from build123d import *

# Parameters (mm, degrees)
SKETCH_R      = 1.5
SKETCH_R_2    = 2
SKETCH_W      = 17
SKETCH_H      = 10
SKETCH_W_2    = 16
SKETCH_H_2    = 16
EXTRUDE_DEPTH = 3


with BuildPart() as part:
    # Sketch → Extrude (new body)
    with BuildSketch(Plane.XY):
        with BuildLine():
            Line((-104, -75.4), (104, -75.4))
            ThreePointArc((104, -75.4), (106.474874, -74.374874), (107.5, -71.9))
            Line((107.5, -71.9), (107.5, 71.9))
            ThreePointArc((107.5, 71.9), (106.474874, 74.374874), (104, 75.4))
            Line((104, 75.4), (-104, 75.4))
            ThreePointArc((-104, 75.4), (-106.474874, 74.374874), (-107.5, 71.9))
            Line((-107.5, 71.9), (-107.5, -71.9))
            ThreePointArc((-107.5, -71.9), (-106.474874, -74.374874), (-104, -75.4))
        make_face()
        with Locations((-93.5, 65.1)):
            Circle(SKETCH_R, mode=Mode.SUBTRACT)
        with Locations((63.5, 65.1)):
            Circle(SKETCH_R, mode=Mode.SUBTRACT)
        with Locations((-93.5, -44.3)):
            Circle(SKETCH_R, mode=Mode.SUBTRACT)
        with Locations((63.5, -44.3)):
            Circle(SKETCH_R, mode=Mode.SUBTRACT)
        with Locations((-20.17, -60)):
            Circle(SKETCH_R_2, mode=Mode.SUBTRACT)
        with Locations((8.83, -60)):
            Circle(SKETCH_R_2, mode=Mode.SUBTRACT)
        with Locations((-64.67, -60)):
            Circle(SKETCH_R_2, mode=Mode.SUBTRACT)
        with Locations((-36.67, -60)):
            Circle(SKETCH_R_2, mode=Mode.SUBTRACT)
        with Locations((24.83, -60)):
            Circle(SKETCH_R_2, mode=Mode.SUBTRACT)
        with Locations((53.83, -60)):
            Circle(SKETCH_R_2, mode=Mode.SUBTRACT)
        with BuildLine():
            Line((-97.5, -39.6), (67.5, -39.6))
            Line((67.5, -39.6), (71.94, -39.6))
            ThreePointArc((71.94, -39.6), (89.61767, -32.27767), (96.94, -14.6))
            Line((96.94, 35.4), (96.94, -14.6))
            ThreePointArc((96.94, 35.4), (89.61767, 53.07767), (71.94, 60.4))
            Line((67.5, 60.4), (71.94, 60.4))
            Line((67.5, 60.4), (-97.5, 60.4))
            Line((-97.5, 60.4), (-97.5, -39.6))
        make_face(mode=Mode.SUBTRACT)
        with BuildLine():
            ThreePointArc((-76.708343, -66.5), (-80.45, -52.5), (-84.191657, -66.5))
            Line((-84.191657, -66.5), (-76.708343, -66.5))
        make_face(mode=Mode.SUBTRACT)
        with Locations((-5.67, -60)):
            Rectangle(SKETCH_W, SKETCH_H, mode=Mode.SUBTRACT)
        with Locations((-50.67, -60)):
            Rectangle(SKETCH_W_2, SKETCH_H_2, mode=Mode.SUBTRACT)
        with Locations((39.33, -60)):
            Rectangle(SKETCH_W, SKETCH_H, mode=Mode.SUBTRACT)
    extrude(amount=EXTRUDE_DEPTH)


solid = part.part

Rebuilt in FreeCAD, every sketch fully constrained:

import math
import FreeCAD as App
import Part
import Sketcher
Q = App.Units.Quantity

doc = App.newDocument("Part")
params = doc.addObject("Spreadsheet::Sheet", "Params")
for row, (alias, value) in enumerate([
    ("sketch1_diameter", "4 mm"),
    ("sketch1_diameter2", "3 mm"),
    ("sketch1_radius", "24.999998 mm"),
    ("sketch1_radius2", "3.499999 mm"),
    ("sketch1_radius3", "7.5 mm"),
    ("pad1_length", "3 mm"),
], start=1):
    params.set(f"A{row}", alias)
    params.set(f"B{row}", "=" + value)
    params.setAlias(f"B{row}", alias)

body = doc.addObject("PartDesign::Body", "Body")

# Sketch on XY plane
sketch1 = doc.addObject("Sketcher::SketchObject", "Sketch")
body.addObject(sketch1)
sketch1.AttachmentSupport = (doc.XY_Plane, [""])
sketch1.MapMode = "FlatFace"
sketch1.addGeometry([
    Part.LineSegment(App.Vector(-104, -75.4, 0), App.Vector(104, -75.4, 0)),  # 0
    Part.ArcOfCircle(Part.Circle(App.Vector(104, -71.9, 0), App.Vector(0, 0, 1), 3.5), math.radians(-90), math.radians(0)),  # 1
    Part.LineSegment(App.Vector(107.5, -71.9, 0), App.Vector(107.5, 71.9, 0)),  # 2
    Part.ArcOfCircle(Part.Circle(App.Vector(104, 71.9, 0), App.Vector(0, 0, 1), 3.5), math.radians(0), math.radians(90)),  # 3
    Part.LineSegment(App.Vector(104, 75.4, 0), App.Vector(-104, 75.4, 0)),  # 4
    Part.ArcOfCircle(Part.Circle(App.Vector(-104, 71.9, 0), App.Vector(0, 0, 1), 3.5), math.radians(90), math.radians(180)),  # 5
    Part.LineSegment(App.Vector(-107.5, 71.9, 0), App.Vector(-107.5, -71.9, 0)),  # 6
    Part.ArcOfCircle(Part.Circle(App.Vector(-104, -71.9, 0), App.Vector(0, 0, 1), 3.5), math.radians(180), math.radians(270)),  # 7
    Part.ArcOfCircle(Part.Circle(App.Vector(-80.5, -60, 0), App.Vector(0, 0, 1), 7.5), math.radians(-60), math.radians(240)),  # 8
    Part.LineSegment(App.Vector(-76.7, -66.5, 0), App.Vector(-84.2, -66.5, 0)),  # 9
    Part.Circle(App.Vector(-64.7, -60, 0), App.Vector(0, 0, 1), 2),  # 10
    Part.LineSegment(App.Vector(-42.7, -68, 0), App.Vector(-58.7, -68, 0)),  # 11
    Part.LineSegment(App.Vector(-58.7, -68, 0), App.Vector(-58.7, -52, 0)),  # 12
    Part.LineSegment(App.Vector(-58.7, -52, 0), App.Vector(-42.7, -52, 0)),  # 13
    Part.LineSegment(App.Vector(-42.7, -52, 0), App.Vector(-42.7, -68, 0)),  # 14
    Part.Circle(App.Vector(-93.5, -44.3, 0), App.Vector(0, 0, 1), 1.5),  # 15
    Part.Circle(App.Vector(-36.7, -60, 0), App.Vector(0, 0, 1), 2),  # 16
    Part.Circle(App.Vector(-20.2, -60, 0), App.Vector(0, 0, 1), 2),  # 17
    Part.LineSegment(App.Vector(2.8, -65, 0), App.Vector(-14.2, -65, 0)),  # 18
    Part.LineSegment(App.Vector(-14.2, -65, 0), App.Vector(-14.2, -55, 0)),  # 19
    Part.LineSegment(App.Vector(-14.2, -55, 0), App.Vector(2.8, -55, 0)),  # 20
    Part.LineSegment(App.Vector(2.8, -55, 0), App.Vector(2.8, -65, 0)),  # 21
    Part.Circle(App.Vector(8.8, -60, 0), App.Vector(0, 0, 1), 2),  # 22
    Part.Circle(App.Vector(24.8, -60, 0), App.Vector(0, 0, 1), 2),  # 23
    Part.LineSegment(App.Vector(47.8, -65, 0), App.Vector(30.8, -65, 0)),  # 24
    Part.LineSegment(App.Vector(30.8, -65, 0), App.Vector(30.8, -55, 0)),  # 25
    Part.LineSegment(App.Vector(30.8, -55, 0), App.Vector(47.8, -55, 0)),  # 26
    Part.LineSegment(App.Vector(47.8, -55, 0), App.Vector(47.8, -65, 0)),  # 27
    Part.Circle(App.Vector(53.8, -60, 0), App.Vector(0, 0, 1), 2),  # 28
    Part.Circle(App.Vector(63.5, -44.3, 0), App.Vector(0, 0, 1), 1.5),  # 29
    Part.Circle(App.Vector(-93.5, 65.1, 0), App.Vector(0, 0, 1), 1.5),  # 30
    Part.LineSegment(App.Vector(71.9, -39.6, 0), App.Vector(-97.5, -39.6, 0)),  # 31
    Part.LineSegment(App.Vector(-97.5, -39.6, 0), App.Vector(-97.5, 60.4, 0)),  # 32
    Part.LineSegment(App.Vector(-97.5, 60.4, 0), App.Vector(71.9, 60.4, 0)),  # 33
    Part.ArcOfCircle(Part.Circle(App.Vector(71.9, 35.4, 0), App.Vector(0, 0, 1), 25), math.radians(0), math.radians(90)),  # 34
    Part.LineSegment(App.Vector(96.9, 35.4, 0), App.Vector(96.9, -14.6, 0)),  # 35
    Part.ArcOfCircle(Part.Circle(App.Vector(71.9, -14.6, 0), App.Vector(0, 0, 1), 25), math.radians(-90), math.radians(0)),  # 36
    Part.Circle(App.Vector(63.5, 65.1, 0), App.Vector(0, 0, 1), 1.5),  # 37
], False)
sketch1.addConstraint([
    Sketcher.Constraint("Tangent", 0, 2, 1, 1),
    Sketcher.Constraint("Tangent", 1, 2, 2, 1),
    Sketcher.Constraint("Tangent", 2, 2, 3, 1),
    Sketcher.Constraint("Tangent", 3, 2, 4, 1),
    Sketcher.Constraint("Tangent", 4, 2, 5, 1),
    Sketcher.Constraint("Tangent", 5, 2, 6, 1),
    Sketcher.Constraint("Tangent", 6, 2, 7, 1),
    Sketcher.Constraint("Tangent", 7, 2, 0, 1),
    Sketcher.Constraint("Coincident", 8, 1, 9, 1),
    Sketcher.Constraint("Coincident", 9, 2, 8, 2),
    Sketcher.Constraint("Coincident", 11, 2, 12, 1),
    Sketcher.Constraint("Coincident", 12, 2, 13, 1),
    Sketcher.Constraint("Coincident", 13, 2, 14, 1),
    Sketcher.Constraint("Coincident", 14, 2, 11, 1),
    Sketcher.Constraint("Coincident", 18, 2, 19, 1),
    Sketcher.Constraint("Coincident", 19, 2, 20, 1),
    Sketcher.Constraint("Coincident", 20, 2, 21, 1),
    Sketcher.Constraint("Coincident", 21, 2, 18, 1),
    Sketcher.Constraint("Coincident", 24, 2, 25, 1),
    Sketcher.Constraint("Coincident", 25, 2, 26, 1),
    Sketcher.Constraint("Coincident", 26, 2, 27, 1),
    Sketcher.Constraint("Coincident", 27, 2, 24, 1),
    Sketcher.Constraint("Coincident", 31, 2, 32, 1),
    Sketcher.Constraint("Coincident", 32, 2, 33, 1),
    Sketcher.Constraint("Tangent", 33, 2, 34, 2),
    Sketcher.Constraint("Tangent", 34, 1, 35, 1),
    Sketcher.Constraint("Tangent", 35, 2, 36, 2),
    Sketcher.Constraint("Tangent", 36, 1, 31, 1),
    Sketcher.Constraint("Horizontal", 0),
    Sketcher.Constraint("Vertical", 2),
    Sketcher.Constraint("Horizontal", 4),
    Sketcher.Constraint("Vertical", 6),
    Sketcher.Constraint("Horizontal", 9),
    Sketcher.Constraint("Horizontal", 11),
    Sketcher.Constraint("Vertical", 12),
    Sketcher.Constraint("Horizontal", 13),
    Sketcher.Constraint("Vertical", 14),
    Sketcher.Constraint("Horizontal", 18),
    Sketcher.Constraint("Vertical", 19),
    Sketcher.Constraint("Horizontal", 20),
    Sketcher.Constraint("Vertical", 21),
    Sketcher.Constraint("Horizontal", 24),
    Sketcher.Constraint("Vertical", 25),
    Sketcher.Constraint("Horizontal", 26),
    Sketcher.Constraint("Vertical", 27),
    Sketcher.Constraint("Horizontal", 31),
    Sketcher.Constraint("Vertical", 32),
    Sketcher.Constraint("Horizontal", 33),
    Sketcher.Constraint("Vertical", 35),
    Sketcher.Constraint("Equal", 1, 3),
    Sketcher.Constraint("Equal", 3, 5),
    Sketcher.Constraint("Equal", 5, 7),
    Sketcher.Constraint("Equal", 10, 16),
    Sketcher.Constraint("Equal", 16, 17),
    Sketcher.Constraint("Equal", 17, 22),
    Sketcher.Constraint("Equal", 22, 23),
    Sketcher.Constraint("Equal", 23, 28),
    Sketcher.Constraint("Equal", 15, 29),
    Sketcher.Constraint("Equal", 29, 30),
    Sketcher.Constraint("Equal", 34, 36),
    Sketcher.Constraint("Equal", 30, 37),
    Sketcher.Constraint("Symmetric", 1, 3, 5, 3, -1, 1),
    Sketcher.Constraint("Horizontal", 8, 3, 10, 3),
    Sketcher.Constraint("Horizontal", 10, 3, 16, 3),
    Sketcher.Constraint("Horizontal", 16, 3, 17, 3),
    Sketcher.Constraint("Horizontal", 17, 3, 22, 3),
    Sketcher.Constraint("Horizontal", 22, 3, 23, 3),
    Sketcher.Constraint("Horizontal", 23, 3, 28, 3),
    Sketcher.Constraint("Horizontal", 15, 3, 29, 3),
    Sketcher.Constraint("Horizontal", 30, 3, 37, 3),
    Sketcher.Constraint("Horizontal", 21, 2, 24, 2),
    Sketcher.Constraint("Horizontal", 20, 2, 25, 2),
    Sketcher.Constraint("Vertical", 15, 3, 30, 3),
    Sketcher.Constraint("Vertical", 29, 3, 37, 3),
    Sketcher.Constraint("Equal", 20, 24),
    Sketcher.Constraint("Equal", 13, 12),
    Sketcher.Constraint("Diameter", 10, Q("4 mm")),
    Sketcher.Constraint("Diameter", 15, Q("3 mm")),
    Sketcher.Constraint("Radius", 34, Q("24.999998 mm")),
    Sketcher.Constraint("Radius", 1, Q("3.499999 mm")),
    Sketcher.Constraint("Radius", 8, Q("7.5 mm")),
    Sketcher.Constraint("DistanceX", 0, 1, 0, 2, Q("208 mm")),
    Sketcher.Constraint("DistanceX", 11, 2, 11, 1, Q("16 mm")),
    Sketcher.Constraint("DistanceX", 18, 2, 18, 1, Q("17 mm")),
    Sketcher.Constraint("DistanceY", 19, 1, 19, 2, Q("10 mm")),
    Sketcher.Constraint("DistanceY", 32, 1, 32, 2, Q("100 mm")),
    Sketcher.Constraint("DistanceY", 2, 1, 2, 2, Q("143.8 mm")),
    Sketcher.Constraint("DistanceY", 8, 3, -1, 1, Q("60 mm")),
    Sketcher.Constraint("DistanceY", 11, 2, -1, 1, Q("68 mm")),
    Sketcher.Constraint("DistanceY", 18, 2, -1, 1, Q("65 mm")),
    Sketcher.Constraint("DistanceX", 10, 3, 16, 3, Q("28 mm")),
    Sketcher.Constraint("DistanceX", 17, 3, 22, 3, Q("29 mm")),
    Sketcher.Constraint("DistanceX", 22, 3, 23, 3, Q("16 mm")),
    Sketcher.Constraint("DistanceX", 23, 3, 28, 3, Q("29 mm")),
    Sketcher.Constraint("DistanceY", 7, 3, 30, 3, Q("137.000001 mm")),
    Sketcher.Constraint("DistanceX", 29, 3, 1, 2, Q("44 mm")),
    Sketcher.Constraint("DistanceY", 34, 3, 3, 2, Q("39.999998 mm")),
    Sketcher.Constraint("DistanceX", 5, 2, 30, 3, Q("14 mm")),
    Sketcher.Constraint("DistanceX", 10, 3, 11, 2, Q("6 mm")),
    Sketcher.Constraint("DistanceX", 17, 3, 18, 2, Q("6 mm")),
    Sketcher.Constraint("DistanceX", 23, 3, 24, 2, Q("6 mm")),
    Sketcher.Constraint("DistanceX", 31, 2, 15, 3, Q("4 mm")),
    Sketcher.Constraint("DistanceX", 31, 2, 31, 1, Q("169.44 mm")),
    Sketcher.Constraint("DistanceY", 15, 3, -1, 1, Q("44.3 mm")),
    Sketcher.Constraint("DistanceY", 8, 1, -1, 1, Q("66.5 mm")),
    Sketcher.Constraint("DistanceX", 16, 3, 17, 3, Q("16.5 mm")),
    Sketcher.Constraint("DistanceX", 8, 3, -1, 1, Q("80.45 mm")),
    Sketcher.Constraint("DistanceX", 10, 3, -1, 1, Q("64.67 mm")),
])
sketch1.setExpression("Constraints[76]", "Params.sketch1_diameter")
sketch1.setExpression("Constraints[77]", "Params.sketch1_diameter2")
sketch1.setExpression("Constraints[78]", "Params.sketch1_radius")
sketch1.setExpression("Constraints[79]", "Params.sketch1_radius2")
sketch1.setExpression("Constraints[80]", "Params.sketch1_radius3")
pad1 = doc.addObject("PartDesign::Pad", "Pad")
body.addObject(pad1)
pad1.Profile = sketch1
pad1.setExpression("Length", "Params.pad1_length")

doc.recompute()
